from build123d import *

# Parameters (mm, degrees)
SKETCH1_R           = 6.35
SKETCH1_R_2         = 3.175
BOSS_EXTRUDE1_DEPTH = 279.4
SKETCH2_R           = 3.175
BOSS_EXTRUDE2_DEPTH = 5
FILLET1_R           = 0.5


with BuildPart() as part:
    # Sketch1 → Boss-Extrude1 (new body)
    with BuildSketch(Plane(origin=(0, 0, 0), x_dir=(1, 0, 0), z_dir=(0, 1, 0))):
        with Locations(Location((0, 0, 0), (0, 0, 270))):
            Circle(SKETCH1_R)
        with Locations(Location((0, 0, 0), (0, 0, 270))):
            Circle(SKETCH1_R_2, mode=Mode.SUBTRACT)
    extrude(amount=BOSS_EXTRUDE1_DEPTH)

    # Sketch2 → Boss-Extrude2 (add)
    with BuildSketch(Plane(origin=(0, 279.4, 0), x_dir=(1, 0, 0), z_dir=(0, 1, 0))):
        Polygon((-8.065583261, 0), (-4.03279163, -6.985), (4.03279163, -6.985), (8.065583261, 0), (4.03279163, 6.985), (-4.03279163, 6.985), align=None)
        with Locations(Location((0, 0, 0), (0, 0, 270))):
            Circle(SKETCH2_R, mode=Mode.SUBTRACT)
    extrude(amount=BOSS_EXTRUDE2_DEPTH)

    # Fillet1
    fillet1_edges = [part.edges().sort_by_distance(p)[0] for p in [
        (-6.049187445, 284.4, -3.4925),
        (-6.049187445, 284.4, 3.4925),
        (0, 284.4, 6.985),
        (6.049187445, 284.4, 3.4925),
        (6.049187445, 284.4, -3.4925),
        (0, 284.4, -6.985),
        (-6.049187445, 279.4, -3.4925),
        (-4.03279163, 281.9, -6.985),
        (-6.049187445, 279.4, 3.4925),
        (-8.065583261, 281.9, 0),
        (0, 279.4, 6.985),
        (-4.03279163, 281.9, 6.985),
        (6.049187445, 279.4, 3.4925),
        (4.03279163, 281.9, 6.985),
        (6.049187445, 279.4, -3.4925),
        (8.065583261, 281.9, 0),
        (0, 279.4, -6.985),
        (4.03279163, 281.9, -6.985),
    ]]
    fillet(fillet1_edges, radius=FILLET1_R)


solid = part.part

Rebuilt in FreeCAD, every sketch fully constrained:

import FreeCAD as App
import Part
import Sketcher
Q = App.Units.Quantity


def edges_at(feature, points):
    """Names of the edges that pass closest to the given points."""
    edges = feature.Shape.Edges
    near = lambda p: min(range(len(edges)), key=lambda i: edges[i].distToShape(Part.Vertex(*p))[0])
    return sorted({f"Edge{near(p) + 1}" for p in points})

doc = App.newDocument("Part")
params = doc.addObject("Spreadsheet::Sheet", "Params")
for row, (alias, value) in enumerate([
    ("sketch1_diameter", "0.5 in"),
    ("sketch1_diameter2", "0.25 in"),
    ("pad1_length", "11 in"),
    ("sketch2_diameter", "0.25 in"),
    ("pad2_length", "5 mm"),
    ("fillet_radius", "0.5 mm"),
], start=1):
    params.set(f"A{row}", alias)
    params.set(f"B{row}", "=" + value)
    params.setAlias(f"B{row}", alias)

body = doc.addObject("PartDesign::Body", "Body")

# Sketch on XZ plane
sketch1 = body.newObject("Sketcher::SketchObject", "Sketch")
sketch1.AttachmentSupport = (doc.getObject("XZ_Plane"), [""])
sketch1.MapMode = "FlatFace"
sketch1.addGeometry([
    Part.Circle(App.Vector(0, 0, 0), App.Vector(0, 0, 1), 6.3),
    Part.Circle(App.Vector(0, 0, 0), App.Vector(0, 0, 1), 3.2),
], False)
sketch1.addConstraint([
    Sketcher.Constraint("Coincident", 0, 3, -1, 1),
    Sketcher.Constraint("Coincident", 1, 3, -1, 1),
    Sketcher.Constraint("Diameter", 0, Q("0.5 in")),
    Sketcher.Constraint("Diameter", 1, Q("0.25 in")),
])
sketch1.setExpression("Constraints[2]", "Params.sketch1_diameter")
sketch1.setExpression("Constraints[3]", "Params.sketch1_diameter2")
pad1 = body.newObject("PartDesign::Pad", "Pad")
pad1.Profile = sketch1
pad1.setExpression("Length", "Params.pad1_length")
pad1.Reversed = True

# Sketch on XZ plane
sketch2 = body.newObject("Sketcher::SketchObject", "Sketch001")
sketch2.AttachmentSupport = (doc.getObject("XZ_Plane"), [""])
sketch2.MapMode = "FlatFace"
sketch2.AttachmentOffset = App.Placement(App.Vector(0, 0, -11 * 25.4), App.Rotation())
sketch2.addGeometry([
    Part.LineSegment(App.Vector(-8.1, 0, 0), App.Vector(-4, 7, 0)),  # 0
    Part.LineSegment(App.Vector(-4, 7, 0), App.Vector(4, 7, 0)),  # 1
    Part.LineSegment(App.Vector(4, 7, 0), App.Vector(8.1, 0, 0)),  # 2
    Part.LineSegment(App.Vector(8.1, 0, 0), App.Vector(4, -7, 0)),  # 3
    Part.LineSegment(App.Vector(4, -7, 0), App.Vector(-4, -7, 0)),  # 4
    Part.LineSegment(App.Vector(-4, -7, 0), App.Vector(-8.1, 0, 0)),  # 5
    Part.Circle(App.Vector(0, 0, 0), App.Vector(0, 0, 1), 3.2),  # 6
], False)
sketch2.addConstraint([
    Sketcher.Constraint("Coincident", 0, 2, 1, 1),
    Sketcher.Constraint("Coincident", 1, 2, 2, 1),
    Sketcher.Constraint("Coincident", 2, 2, 3, 1),
    Sketcher.Constraint("Coincident", 3, 2, 4, 1),
    Sketcher.Constraint("Coincident", 4, 2, 5, 1),
    Sketcher.Constraint("Coincident", 5, 2, 0, 1),
    Sketcher.Constraint("Horizontal", 1),
    Sketcher.Constraint("Horizontal", 4),
    Sketcher.Constraint("Coincident", 6, 3, -1, 1),
    Sketcher.Constraint("Symmetric", 0, 2, 3, 2, -1, 1),
    Sketcher.Constraint("Symmetric", 2, 2, 5, 2, -1, 1),
    Sketcher.Constraint("PointOnObject", 2, 2, -1),
    Sketcher.Constraint("Parallel", 2, 5),
    Sketcher.Constraint("Vertical", 1, 2, 3, 2),
    Sketcher.Constraint("Diameter", 6, Q("0.25 in")),
    Sketcher.Constraint("Angle", 0, Q("60 deg")),
    Sketcher.Constraint("DistanceY", 3, 2, 1, 2, Q("0.55 in")),
    Sketcher.Constraint("DistanceX", 1, 1, 1, 2, 8.065583),
])
sketch2.setExpression("Constraints[14]", "Params.sketch2_diameter")
pad2 = body.newObject("PartDesign::Pad", "Pad001")
pad2.Profile = sketch2
pad2.setExpression("Length", "Params.pad2_length")
pad2.Reversed = True
doc.recompute()

fillet = body.newObject("PartDesign::Fillet", "Fillet")
fillet.Base = (pad2, edges_at(pad2, [
    (-6.049, 284.4, -3.493),
    (-6.049, 284.4, 3.493),
    (0, 284.4, 6.985),
    (6.049, 284.4, 3.493),
    (6.049, 284.4, -3.493),
    (0, 284.4, -6.985),
    (-6.049, 279.4, -3.493),
    (-4.033, 281.9, -6.985),
    (-6.049, 279.4, 3.493),
    (-8.066, 281.9, 0),
    (0, 279.4, 6.985),
    (-4.033, 281.9, 6.985),
    (6.049, 279.4, 3.493),
    (4.033, 281.9, 6.985),
    (6.049, 279.4, -3.493),
    (8.066, 281.9, 0),
    (0, 279.4, -6.985),
    (4.033, 281.9, -6.985),
]))
fillet.setExpression("Radius", "Params.fillet_radius")

doc.recompute()
